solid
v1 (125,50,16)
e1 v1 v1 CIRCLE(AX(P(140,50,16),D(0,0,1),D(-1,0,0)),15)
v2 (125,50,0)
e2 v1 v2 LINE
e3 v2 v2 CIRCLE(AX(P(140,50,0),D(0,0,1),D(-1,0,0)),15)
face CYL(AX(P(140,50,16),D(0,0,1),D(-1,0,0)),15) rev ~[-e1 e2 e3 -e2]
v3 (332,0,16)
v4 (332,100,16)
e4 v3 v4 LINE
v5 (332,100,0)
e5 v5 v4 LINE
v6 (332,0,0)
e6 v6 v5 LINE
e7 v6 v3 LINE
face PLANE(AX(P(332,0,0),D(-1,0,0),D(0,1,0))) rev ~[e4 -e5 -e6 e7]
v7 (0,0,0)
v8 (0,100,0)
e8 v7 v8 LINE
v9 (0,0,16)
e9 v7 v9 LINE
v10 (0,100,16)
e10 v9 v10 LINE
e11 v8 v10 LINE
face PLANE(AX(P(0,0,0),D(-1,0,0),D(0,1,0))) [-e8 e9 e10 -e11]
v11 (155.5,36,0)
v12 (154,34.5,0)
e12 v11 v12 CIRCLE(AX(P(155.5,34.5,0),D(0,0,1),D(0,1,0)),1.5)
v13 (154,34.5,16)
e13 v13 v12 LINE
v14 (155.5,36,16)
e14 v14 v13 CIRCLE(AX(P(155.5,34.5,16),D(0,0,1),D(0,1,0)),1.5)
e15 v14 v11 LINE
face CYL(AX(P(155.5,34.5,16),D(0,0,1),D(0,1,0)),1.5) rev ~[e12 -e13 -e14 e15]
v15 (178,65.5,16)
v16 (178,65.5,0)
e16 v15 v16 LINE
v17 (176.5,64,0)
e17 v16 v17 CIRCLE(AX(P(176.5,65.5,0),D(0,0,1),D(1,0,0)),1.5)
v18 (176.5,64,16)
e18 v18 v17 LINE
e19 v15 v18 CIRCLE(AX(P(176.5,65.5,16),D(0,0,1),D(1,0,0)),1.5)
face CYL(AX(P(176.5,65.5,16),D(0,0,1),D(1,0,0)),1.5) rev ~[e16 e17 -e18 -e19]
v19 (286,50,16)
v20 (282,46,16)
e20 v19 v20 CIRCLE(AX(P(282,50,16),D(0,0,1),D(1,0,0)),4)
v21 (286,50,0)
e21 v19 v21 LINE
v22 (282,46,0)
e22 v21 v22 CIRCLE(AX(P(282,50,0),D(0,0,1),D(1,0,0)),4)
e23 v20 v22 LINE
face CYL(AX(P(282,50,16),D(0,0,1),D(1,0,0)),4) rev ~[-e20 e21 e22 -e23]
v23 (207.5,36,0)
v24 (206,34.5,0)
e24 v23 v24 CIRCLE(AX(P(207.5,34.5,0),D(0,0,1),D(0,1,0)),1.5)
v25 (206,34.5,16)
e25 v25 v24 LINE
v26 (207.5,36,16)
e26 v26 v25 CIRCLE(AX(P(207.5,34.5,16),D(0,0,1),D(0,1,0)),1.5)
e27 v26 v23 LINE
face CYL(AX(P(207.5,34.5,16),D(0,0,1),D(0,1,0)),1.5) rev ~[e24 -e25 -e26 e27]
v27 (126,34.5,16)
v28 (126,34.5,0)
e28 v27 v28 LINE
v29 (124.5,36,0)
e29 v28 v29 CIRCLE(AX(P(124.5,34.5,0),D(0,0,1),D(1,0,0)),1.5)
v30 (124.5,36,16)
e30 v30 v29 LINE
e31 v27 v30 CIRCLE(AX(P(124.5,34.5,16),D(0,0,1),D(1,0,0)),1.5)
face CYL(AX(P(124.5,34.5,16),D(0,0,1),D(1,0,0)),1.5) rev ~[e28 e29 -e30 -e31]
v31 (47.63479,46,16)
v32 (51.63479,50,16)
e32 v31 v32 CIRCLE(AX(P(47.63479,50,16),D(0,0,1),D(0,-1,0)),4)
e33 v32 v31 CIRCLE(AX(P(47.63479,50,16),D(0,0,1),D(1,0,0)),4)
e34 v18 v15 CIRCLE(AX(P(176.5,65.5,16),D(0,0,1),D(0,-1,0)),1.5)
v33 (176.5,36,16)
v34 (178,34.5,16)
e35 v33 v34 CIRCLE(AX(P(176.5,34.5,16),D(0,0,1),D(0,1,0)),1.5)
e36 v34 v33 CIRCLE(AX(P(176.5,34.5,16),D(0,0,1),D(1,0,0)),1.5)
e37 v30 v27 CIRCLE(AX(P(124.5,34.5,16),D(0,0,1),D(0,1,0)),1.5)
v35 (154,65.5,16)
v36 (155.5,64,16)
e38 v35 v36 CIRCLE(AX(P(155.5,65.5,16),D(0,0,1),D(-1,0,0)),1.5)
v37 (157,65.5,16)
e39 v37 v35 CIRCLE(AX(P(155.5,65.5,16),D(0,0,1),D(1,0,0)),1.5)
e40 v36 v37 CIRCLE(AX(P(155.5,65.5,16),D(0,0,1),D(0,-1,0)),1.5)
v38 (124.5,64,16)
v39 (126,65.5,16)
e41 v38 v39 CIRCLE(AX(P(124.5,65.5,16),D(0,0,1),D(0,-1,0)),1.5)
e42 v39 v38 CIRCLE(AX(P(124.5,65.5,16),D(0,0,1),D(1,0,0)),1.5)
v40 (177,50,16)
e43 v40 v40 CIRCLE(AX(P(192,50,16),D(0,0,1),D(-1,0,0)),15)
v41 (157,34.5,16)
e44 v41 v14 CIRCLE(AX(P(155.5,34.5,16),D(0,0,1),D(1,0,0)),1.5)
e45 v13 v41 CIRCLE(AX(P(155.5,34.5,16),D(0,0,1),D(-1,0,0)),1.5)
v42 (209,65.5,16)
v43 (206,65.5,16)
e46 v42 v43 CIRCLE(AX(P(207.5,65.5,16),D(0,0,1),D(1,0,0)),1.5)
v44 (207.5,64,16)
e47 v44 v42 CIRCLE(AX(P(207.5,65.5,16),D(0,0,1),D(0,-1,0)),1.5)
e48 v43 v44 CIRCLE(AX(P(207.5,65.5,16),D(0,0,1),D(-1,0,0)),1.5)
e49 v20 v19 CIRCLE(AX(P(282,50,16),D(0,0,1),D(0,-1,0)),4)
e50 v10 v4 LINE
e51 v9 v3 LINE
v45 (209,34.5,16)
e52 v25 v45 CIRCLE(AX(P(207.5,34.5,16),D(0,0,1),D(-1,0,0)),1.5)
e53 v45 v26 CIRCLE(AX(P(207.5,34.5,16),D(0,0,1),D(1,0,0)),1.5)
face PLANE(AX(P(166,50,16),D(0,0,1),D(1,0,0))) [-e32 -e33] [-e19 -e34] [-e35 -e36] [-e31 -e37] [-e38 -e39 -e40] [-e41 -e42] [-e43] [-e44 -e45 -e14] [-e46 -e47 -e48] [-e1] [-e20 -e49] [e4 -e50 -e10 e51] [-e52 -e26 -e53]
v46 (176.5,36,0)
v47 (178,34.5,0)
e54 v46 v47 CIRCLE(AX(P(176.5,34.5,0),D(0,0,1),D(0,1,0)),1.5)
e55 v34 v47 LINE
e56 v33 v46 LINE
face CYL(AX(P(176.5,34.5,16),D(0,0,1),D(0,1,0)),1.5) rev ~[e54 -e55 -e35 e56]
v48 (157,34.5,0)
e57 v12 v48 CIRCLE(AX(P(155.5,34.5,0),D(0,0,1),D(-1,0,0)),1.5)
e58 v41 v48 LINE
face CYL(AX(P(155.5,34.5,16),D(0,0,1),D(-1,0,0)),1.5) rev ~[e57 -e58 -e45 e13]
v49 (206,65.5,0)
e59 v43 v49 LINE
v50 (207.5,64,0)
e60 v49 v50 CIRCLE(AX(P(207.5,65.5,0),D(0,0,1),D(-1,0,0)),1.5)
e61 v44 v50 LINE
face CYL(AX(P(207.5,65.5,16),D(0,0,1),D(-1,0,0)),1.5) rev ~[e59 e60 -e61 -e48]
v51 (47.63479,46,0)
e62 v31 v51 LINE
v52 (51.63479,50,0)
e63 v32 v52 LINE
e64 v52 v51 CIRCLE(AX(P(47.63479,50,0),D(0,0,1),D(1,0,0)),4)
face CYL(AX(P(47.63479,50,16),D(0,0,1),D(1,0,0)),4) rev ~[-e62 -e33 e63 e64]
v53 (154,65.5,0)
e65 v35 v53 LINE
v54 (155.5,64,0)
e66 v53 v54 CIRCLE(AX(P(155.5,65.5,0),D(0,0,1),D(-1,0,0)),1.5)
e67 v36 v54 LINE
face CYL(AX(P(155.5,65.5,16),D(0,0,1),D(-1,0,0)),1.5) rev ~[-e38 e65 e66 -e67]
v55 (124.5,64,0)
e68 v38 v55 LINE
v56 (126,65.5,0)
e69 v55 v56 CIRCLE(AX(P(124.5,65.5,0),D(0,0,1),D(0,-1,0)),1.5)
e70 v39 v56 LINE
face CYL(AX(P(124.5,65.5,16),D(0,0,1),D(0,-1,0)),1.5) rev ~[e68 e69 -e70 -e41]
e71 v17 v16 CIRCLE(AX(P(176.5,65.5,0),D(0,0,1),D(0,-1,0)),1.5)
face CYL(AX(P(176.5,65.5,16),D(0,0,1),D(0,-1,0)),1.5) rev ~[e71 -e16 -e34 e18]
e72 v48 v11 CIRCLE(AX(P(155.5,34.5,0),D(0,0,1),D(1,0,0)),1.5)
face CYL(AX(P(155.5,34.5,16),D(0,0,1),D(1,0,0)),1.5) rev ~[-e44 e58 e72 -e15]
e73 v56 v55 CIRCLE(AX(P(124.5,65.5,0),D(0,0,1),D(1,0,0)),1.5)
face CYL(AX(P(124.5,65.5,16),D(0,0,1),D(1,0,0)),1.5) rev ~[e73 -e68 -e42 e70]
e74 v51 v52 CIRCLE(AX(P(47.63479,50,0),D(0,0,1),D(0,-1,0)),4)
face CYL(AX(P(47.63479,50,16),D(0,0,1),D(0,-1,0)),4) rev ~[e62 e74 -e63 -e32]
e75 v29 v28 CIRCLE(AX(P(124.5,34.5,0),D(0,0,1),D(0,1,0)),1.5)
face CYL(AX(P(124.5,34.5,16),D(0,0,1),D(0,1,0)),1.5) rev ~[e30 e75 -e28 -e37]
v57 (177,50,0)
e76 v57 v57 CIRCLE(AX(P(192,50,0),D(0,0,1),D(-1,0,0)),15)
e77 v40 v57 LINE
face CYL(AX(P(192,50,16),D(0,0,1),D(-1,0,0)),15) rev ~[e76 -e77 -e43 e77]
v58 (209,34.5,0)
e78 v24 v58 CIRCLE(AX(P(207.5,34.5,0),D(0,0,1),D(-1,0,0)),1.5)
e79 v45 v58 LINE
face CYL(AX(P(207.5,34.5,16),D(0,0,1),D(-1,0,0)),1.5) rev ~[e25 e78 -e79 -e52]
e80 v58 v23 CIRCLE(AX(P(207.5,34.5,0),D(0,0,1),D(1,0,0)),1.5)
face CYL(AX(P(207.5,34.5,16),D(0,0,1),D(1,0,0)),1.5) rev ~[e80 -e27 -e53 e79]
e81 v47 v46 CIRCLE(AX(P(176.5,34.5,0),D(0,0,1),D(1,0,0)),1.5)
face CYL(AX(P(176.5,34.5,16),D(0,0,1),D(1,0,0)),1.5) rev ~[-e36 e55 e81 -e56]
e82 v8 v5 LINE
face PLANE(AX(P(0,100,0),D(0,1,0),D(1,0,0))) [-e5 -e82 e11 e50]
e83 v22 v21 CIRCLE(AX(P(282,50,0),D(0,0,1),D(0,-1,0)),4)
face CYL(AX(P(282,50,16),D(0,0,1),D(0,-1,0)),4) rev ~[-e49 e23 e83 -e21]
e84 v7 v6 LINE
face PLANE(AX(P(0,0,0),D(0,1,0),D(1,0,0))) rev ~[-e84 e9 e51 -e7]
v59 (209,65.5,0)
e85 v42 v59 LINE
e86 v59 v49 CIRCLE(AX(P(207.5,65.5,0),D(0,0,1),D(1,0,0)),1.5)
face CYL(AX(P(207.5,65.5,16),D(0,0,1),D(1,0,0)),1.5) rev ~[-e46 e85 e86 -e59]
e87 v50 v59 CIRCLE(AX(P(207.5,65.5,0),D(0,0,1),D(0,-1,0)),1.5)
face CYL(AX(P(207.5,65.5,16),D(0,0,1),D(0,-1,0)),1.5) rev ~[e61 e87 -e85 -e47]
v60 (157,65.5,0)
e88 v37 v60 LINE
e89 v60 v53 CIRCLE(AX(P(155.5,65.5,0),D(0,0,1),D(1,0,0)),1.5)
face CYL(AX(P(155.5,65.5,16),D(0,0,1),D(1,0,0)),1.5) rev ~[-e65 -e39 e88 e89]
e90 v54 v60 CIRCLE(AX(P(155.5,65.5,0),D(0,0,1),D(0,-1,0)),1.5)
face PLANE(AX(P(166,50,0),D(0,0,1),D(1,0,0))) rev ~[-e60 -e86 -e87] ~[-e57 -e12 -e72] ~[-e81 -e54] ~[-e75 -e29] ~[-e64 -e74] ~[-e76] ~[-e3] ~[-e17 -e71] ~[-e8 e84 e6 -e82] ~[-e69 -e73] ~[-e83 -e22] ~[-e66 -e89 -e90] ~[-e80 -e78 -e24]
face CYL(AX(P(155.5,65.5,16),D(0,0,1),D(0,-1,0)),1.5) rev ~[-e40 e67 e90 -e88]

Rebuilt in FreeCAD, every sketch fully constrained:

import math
import FreeCAD as App
import Part
import Sketcher

V = App.Vector


def add_polygon(sketch, points):
    """Adds a closed chain of lines whose ends are joined by coincident constraints."""
    first, n = sketch.GeometryCount, len(points)
    for a, b in zip(points, points[1:] + points[:1]):
        sketch.addGeometry(Part.LineSegment(App.Vector(*a, 0), App.Vector(*b, 0)), False)
    for i in range(n):
        sketch.addConstraint(Sketcher.Constraint("Coincident", first + i, 2, first + (i + 1) % n, 1))

doc = App.newDocument("Part")
params = doc.addObject("Spreadsheet::Sheet", "Params")
for row, (alias, value) in enumerate([
    ("sketch1_width", "332 mm"),
    ("sketch1_height", "100 mm"),
    ("pad1_length", "16 mm"),
    ("sketch2_diameter", "30 mm"),
    ("sketch2_radius", "1.5 mm"),
    ("pocket1_length", "25 mm"),
    ("sketch3_radius", "4 mm"),
    ("pocket2_length", "25 mm"),
], start=1):
    params.set(f"A{row}", alias)
    params.set(f"B{row}", "=" + value)
    params.setAlias(f"B{row}", alias)

body = doc.addObject("PartDesign::Body", "Body")

sketch1 = body.newObject("Sketcher::SketchObject", "Sketch")
sketch1.AttachmentSupport = (doc.getObject("XY_Plane"), [""])
sketch1.MapMode = "FlatFace"
add_polygon(sketch1, [(0, 100), (0, 0), (332, 0), (332, 100)])
sketch1.addConstraint([
    Sketcher.Constraint("Vertical", 0),
    Sketcher.Constraint("Horizontal", 1),
    Sketcher.Constraint("Vertical", 2),
    Sketcher.Constraint("Horizontal", 3),
    Sketcher.Constraint("Coincident", 0, 2, -1, 1),
    Sketcher.Constraint("DistanceX", 1, 1, 1, 2, 332.0),
    Sketcher.Constraint("DistanceY", 0, 2, 0, 1, 100.0),
])
sketch1.setExpression("Constraints[9]", "Params.sketch1_width")
sketch1.setExpression("Constraints[10]", "Params.sketch1_height")
pad1 = body.newObject("PartDesign::Pad", "Pad")
pad1.Profile = sketch1
pad1.setExpression("Length", "Params.pad1_length")

sketch2 = body.newObject("Sketcher::SketchObject", "Sketch001")
sketch2.AttachmentSupport = (doc.getObject("XY_Plane"), [""])
sketch2.MapMode = "FlatFace"
sketch2.AttachmentOffset = App.Placement(V(0, 0, 16), App.Rotation())
sketch2.addGeometry([
    Part.Circle(V(140, 50, 0), V(0, 0, 1), 15),
    Part.ArcOfCircle(Part.Circle(V(124.5, 65.5, 0), V(0, 0, 1), 1.5), math.radians(0), math.radians(270)),
    Part.ArcOfCircle(Part.Circle(V(124.5, 65.5, 0), V(0, 0, 1), 1.5), math.radians(-90), math.radians(0)),
    Part.ArcOfCircle(Part.Circle(V(124.5, 34.5, 0), V(0, 0, 1), 1.5), math.radians(90), math.radians(360)),
    Part.ArcOfCircle(Part.Circle(V(124.5, 34.5, 0), V(0, 0, 1), 1.5), math.radians(0), math.radians(90)),
    Part.ArcOfCircle(Part.Circle(V(155.5, 34.5, 0), V(0, 0, 1), 1.5), math.radians(180), math.radians(360)),
    Part.ArcOfCircle(Part.Circle(V(155.5, 34.5, 0), V(0, 0, 1), 1.5), math.radians(0), math.radians(90)),
    Part.ArcOfCircle(Part.Circle(V(155.5, 34.5, 0), V(0, 0, 1), 1.5), math.radians(90), math.radians(180)),
    Part.ArcOfCircle(Part.Circle(V(155.5, 65.5, 0), V(0, 0, 1), 1.5), math.radians(-90), math.radians(0)),
    Part.ArcOfCircle(Part.Circle(V(155.5, 65.5, 0), V(0, 0, 1), 1.5), math.radians(0), math.radians(180)),
    Part.ArcOfCircle(Part.Circle(V(155.5, 65.5, 0), V(0, 0, 1), 1.5), math.radians(180), math.radians(270)),
    Part.Circle(V(192, 50, 0), V(0, 0, 1), 15),
    Part.ArcOfCircle(Part.Circle(V(176.5, 65.5, 0), V(0, 0, 1), 1.5), math.radians(0), math.radians(270)),
    Part.ArcOfCircle(Part.Circle(V(176.5, 65.5, 0), V(0, 0, 1), 1.5), math.radians(-90), math.radians(0)),
    Part.ArcOfCircle(Part.Circle(V(176.5, 34.5, 0), V(0, 0, 1), 1.5), math.radians(90), math.radians(360)),
    Part.ArcOfCircle(Part.Circle(V(176.5, 34.5, 0), V(0, 0, 1), 1.5), math.radians(0), math.radians(90)),
    Part.ArcOfCircle(Part.Circle(V(207.5, 34.5, 0), V(0, 0, 1), 1.5), math.radians(90), math.radians(180)),
    Part.ArcOfCircle(Part.Circle(V(207.5, 34.5, 0), V(0, 0, 1), 1.5), math.radians(180), math.radians(360)),
    Part.ArcOfCircle(Part.Circle(V(207.5, 34.5, 0), V(0, 0, 1), 1.5), math.radians(0), math.radians(90)),
    Part.ArcOfCircle(Part.Circle(V(207.5, 65.5, 0), V(0, 0, 1), 1.5), math.radians(-90), math.radians(0)),
    Part.ArcOfCircle(Part.Circle(V(207.5, 65.5, 0), V(0, 0, 1), 1.5), math.radians(0), math.radians(180)),
    Part.ArcOfCircle(Part.Circle(V(207.5, 65.5, 0), V(0, 0, 1), 1.5), math.radians(180), math.radians(270)),
], False)
sketch2.addConstraint([
    Sketcher.Constraint("Tangent", 1, 1, 2, 2),
    Sketcher.Constraint("Coincident", 2, 1, 1, 2),
    Sketcher.Constraint("Tangent", 3, 1, 4, 2),
    Sketcher.Constraint("Coincident", 4, 1, 3, 2),
    Sketcher.Constraint("Tangent", 5, 2, 6, 1),
    Sketcher.Constraint("Tangent", 6, 2, 7, 1),
    Sketcher.Constraint("Tangent", 7, 2, 5, 1),
    Sketcher.Constraint("Tangent", 8, 2, 9, 1),
    Sketcher.Constraint("Tangent", 9, 2, 10, 1),
    Sketcher.Constraint("Tangent", 10, 2, 8, 1),
    Sketcher.Constraint("Tangent", 12, 1, 13, 2),
    Sketcher.Constraint("Coincident", 13, 1, 12, 2),
    Sketcher.Constraint("Tangent", 14, 1, 15, 2),
    Sketcher.Constraint("Coincident", 15, 1, 14, 2),
    Sketcher.Constraint("Tangent", 16, 2, 17, 1),
    Sketcher.Constraint("Tangent", 17, 2, 18, 1),
    Sketcher.Constraint("Tangent", 18, 2, 16, 1),
    Sketcher.Constraint("Tangent", 19, 2, 20, 1),
    Sketcher.Constraint("Tangent", 20, 2, 21, 1),
    Sketcher.Constraint("Tangent", 21, 2, 19, 1),
    Sketcher.Constraint("Equal", 2, 3),
    Sketcher.Constraint("Equal", 4, 5),
    Sketcher.Constraint("Equal", 7, 8),
    Sketcher.Constraint("Equal", 0, 11),
    Sketcher.Constraint("Equal", 10, 12),
    Sketcher.Constraint("Equal", 13, 14),
    Sketcher.Constraint("Equal", 15, 16),
    Sketcher.Constraint("Equal", 18, 19),
    Sketcher.Constraint("Horizontal", 4, 3, 5, 3),
    Sketcher.Constraint("Horizontal", 2, 3, 8, 3),
    Sketcher.Constraint("Horizontal", 0, 3, 11, 3),
    Sketcher.Constraint("Horizontal", 10, 3, 12, 3),
    Sketcher.Constraint("Horizontal", 7, 3, 14, 3),
    Sketcher.Constraint("Horizontal", 15, 3, 16, 3),
    Sketcher.Constraint("Horizontal", 13, 3, 19, 3),
    Sketcher.Constraint("Horizontal", 21, 3, 1, 1),
    Sketcher.Constraint("Horizontal", 18, 3, 4, 1),
    Sketcher.Constraint("Horizontal", 4, 1, 5, 2),
    Sketcher.Constraint("Horizontal", 5, 2, 7, 2),
    Sketcher.Constraint("Horizontal", 1, 1, 8, 2),
    Sketcher.Constraint("Horizontal", 8, 2, 9, 2),
    Sketcher.Constraint("Horizontal", 9, 2, 12, 1),
    Sketcher.Constraint("Horizontal", 7, 2, 15, 1),
    Sketcher.Constraint("Horizontal", 15, 1, 16, 2),
    Sketcher.Constraint("Horizontal", 16, 2, 17, 2),
    Sketcher.Constraint("Horizontal", 12, 1, 19, 2),
    Sketcher.Constraint("Horizontal", 19, 2, 20, 2),
    Sketcher.Constraint("Vertical", 2, 3, 3, 3),
    Sketcher.Constraint("Vertical", 7, 3, 8, 3),
    Sketcher.Constraint("Vertical", 13, 3, 14, 3),
    Sketcher.Constraint("Vertical", 18, 3, 19, 3),
    Sketcher.Constraint("Vertical", 4, 3, 2, 1),
    Sketcher.Constraint("Vertical", 2, 1, 3, 1),
    Sketcher.Constraint("Vertical", 10, 3, 6, 2),
    Sketcher.Constraint("Vertical", 6, 2, 10, 2),
    Sketcher.Constraint("Vertical", 15, 3, 13, 1),
    Sketcher.Constraint("Vertical", 13, 1, 14, 1),
    Sketcher.Constraint("Vertical", 21, 3, 18, 2),
    Sketcher.Constraint("Vertical", 18, 2, 21, 2),
    Sketcher.Constraint("Diameter", 0, 30.0),
    Sketcher.Constraint("Radius", 1, 1.5),
    Sketcher.Constraint("DistanceX", -1, 1, 0, 3, 140.0),
    Sketcher.Constraint("DistanceY", -1, 1, 0, 3, 50.0),
    Sketcher.Constraint("DistanceX", -1, 1, 11, 3, 192.0),
    Sketcher.Constraint("DistanceX", -1, 1, 1, 1, 126.0),
    Sketcher.Constraint("DistanceY", -1, 1, 2, 1, 64.0),
    Sketcher.Constraint("DistanceY", -1, 1, 3, 1, 36.0),
    Sketcher.Constraint("DistanceX", -1, 1, 5, 2, 157.0),
    Sketcher.Constraint("DistanceX", -1, 1, 12, 1, 178.0),
    Sketcher.Constraint("DistanceX", -1, 1, 16, 2, 206.0),
])
sketch2.setExpression("Constraints[59]", "Params.sketch2_diameter")
sketch2.setExpression("Constraints[60]", "Params.sketch2_radius")
pocket1 = body.newObject("PartDesign::Pocket", "Pocket")
pocket1.Profile = sketch2
pocket1.setExpression("Length", "Params.pocket1_length")

sketch3 = body.newObject("Sketcher::SketchObject", "Sketch002")
sketch3.AttachmentSupport = (doc.getObject("XY_Plane"), [""])
sketch3.MapMode = "FlatFace"
sketch3.AttachmentOffset = App.Placement(V(0, 0, 16), App.Rotation())
sketch3.addGeometry([
    Part.ArcOfCircle(Part.Circle(V(47.63479, 50, 0), V(0, 0, 1), 4), math.radians(0), math.radians(270)),
    Part.ArcOfCircle(Part.Circle(V(47.63479, 50, 0), V(0, 0, 1), 4), math.radians(-90), math.radians(0)),
    Part.ArcOfCircle(Part.Circle(V(282, 50, 0), V(0, 0, 1), 4), math.radians(0), math.radians(270)),
    Part.ArcOfCircle(Part.Circle(V(282, 50, 0), V(0, 0, 1), 4), math.radians(-90), math.radians(0)),
], False)
sketch3.addConstraint([
    Sketcher.Constraint("Tangent", 0, 1, 1, 2),
    Sketcher.Constraint("Coincident", 1, 1, 0, 2),
    Sketcher.Constraint("Tangent", 2, 1, 3, 2),
    Sketcher.Constraint("Coincident", 3, 1, 2, 2),
    Sketcher.Constraint("Equal", 1, 2),
    Sketcher.Constraint("Horizontal", 1, 3, 2, 3),
    Sketcher.Constraint("Horizontal", 3, 3, 0, 1),
    Sketcher.Constraint("Horizontal", 0, 1, 2, 1),
    Sketcher.Constraint("Vertical", 0, 3, 1, 1),
    Sketcher.Constraint("Vertical", 2, 3, 3, 1),
    Sketcher.Constraint("Radius", 0, 4.0),
    Sketcher.Constraint("DistanceY", -1, 1, 0, 3, 50.0),
    Sketcher.Constraint("DistanceX", -1, 1, 2, 3, 282.0),
    Sketcher.Constraint("DistanceX", -1, 1, 0, 3, 47.63479),
])
sketch3.setExpression("Constraints[10]", "Params.sketch3_radius")
pocket2 = body.newObject("PartDesign::Pocket", "Pocket001")
pocket2.Profile = sketch3
pocket2.setExpression("Length", "Params.pocket2_length")

doc.recompute()
